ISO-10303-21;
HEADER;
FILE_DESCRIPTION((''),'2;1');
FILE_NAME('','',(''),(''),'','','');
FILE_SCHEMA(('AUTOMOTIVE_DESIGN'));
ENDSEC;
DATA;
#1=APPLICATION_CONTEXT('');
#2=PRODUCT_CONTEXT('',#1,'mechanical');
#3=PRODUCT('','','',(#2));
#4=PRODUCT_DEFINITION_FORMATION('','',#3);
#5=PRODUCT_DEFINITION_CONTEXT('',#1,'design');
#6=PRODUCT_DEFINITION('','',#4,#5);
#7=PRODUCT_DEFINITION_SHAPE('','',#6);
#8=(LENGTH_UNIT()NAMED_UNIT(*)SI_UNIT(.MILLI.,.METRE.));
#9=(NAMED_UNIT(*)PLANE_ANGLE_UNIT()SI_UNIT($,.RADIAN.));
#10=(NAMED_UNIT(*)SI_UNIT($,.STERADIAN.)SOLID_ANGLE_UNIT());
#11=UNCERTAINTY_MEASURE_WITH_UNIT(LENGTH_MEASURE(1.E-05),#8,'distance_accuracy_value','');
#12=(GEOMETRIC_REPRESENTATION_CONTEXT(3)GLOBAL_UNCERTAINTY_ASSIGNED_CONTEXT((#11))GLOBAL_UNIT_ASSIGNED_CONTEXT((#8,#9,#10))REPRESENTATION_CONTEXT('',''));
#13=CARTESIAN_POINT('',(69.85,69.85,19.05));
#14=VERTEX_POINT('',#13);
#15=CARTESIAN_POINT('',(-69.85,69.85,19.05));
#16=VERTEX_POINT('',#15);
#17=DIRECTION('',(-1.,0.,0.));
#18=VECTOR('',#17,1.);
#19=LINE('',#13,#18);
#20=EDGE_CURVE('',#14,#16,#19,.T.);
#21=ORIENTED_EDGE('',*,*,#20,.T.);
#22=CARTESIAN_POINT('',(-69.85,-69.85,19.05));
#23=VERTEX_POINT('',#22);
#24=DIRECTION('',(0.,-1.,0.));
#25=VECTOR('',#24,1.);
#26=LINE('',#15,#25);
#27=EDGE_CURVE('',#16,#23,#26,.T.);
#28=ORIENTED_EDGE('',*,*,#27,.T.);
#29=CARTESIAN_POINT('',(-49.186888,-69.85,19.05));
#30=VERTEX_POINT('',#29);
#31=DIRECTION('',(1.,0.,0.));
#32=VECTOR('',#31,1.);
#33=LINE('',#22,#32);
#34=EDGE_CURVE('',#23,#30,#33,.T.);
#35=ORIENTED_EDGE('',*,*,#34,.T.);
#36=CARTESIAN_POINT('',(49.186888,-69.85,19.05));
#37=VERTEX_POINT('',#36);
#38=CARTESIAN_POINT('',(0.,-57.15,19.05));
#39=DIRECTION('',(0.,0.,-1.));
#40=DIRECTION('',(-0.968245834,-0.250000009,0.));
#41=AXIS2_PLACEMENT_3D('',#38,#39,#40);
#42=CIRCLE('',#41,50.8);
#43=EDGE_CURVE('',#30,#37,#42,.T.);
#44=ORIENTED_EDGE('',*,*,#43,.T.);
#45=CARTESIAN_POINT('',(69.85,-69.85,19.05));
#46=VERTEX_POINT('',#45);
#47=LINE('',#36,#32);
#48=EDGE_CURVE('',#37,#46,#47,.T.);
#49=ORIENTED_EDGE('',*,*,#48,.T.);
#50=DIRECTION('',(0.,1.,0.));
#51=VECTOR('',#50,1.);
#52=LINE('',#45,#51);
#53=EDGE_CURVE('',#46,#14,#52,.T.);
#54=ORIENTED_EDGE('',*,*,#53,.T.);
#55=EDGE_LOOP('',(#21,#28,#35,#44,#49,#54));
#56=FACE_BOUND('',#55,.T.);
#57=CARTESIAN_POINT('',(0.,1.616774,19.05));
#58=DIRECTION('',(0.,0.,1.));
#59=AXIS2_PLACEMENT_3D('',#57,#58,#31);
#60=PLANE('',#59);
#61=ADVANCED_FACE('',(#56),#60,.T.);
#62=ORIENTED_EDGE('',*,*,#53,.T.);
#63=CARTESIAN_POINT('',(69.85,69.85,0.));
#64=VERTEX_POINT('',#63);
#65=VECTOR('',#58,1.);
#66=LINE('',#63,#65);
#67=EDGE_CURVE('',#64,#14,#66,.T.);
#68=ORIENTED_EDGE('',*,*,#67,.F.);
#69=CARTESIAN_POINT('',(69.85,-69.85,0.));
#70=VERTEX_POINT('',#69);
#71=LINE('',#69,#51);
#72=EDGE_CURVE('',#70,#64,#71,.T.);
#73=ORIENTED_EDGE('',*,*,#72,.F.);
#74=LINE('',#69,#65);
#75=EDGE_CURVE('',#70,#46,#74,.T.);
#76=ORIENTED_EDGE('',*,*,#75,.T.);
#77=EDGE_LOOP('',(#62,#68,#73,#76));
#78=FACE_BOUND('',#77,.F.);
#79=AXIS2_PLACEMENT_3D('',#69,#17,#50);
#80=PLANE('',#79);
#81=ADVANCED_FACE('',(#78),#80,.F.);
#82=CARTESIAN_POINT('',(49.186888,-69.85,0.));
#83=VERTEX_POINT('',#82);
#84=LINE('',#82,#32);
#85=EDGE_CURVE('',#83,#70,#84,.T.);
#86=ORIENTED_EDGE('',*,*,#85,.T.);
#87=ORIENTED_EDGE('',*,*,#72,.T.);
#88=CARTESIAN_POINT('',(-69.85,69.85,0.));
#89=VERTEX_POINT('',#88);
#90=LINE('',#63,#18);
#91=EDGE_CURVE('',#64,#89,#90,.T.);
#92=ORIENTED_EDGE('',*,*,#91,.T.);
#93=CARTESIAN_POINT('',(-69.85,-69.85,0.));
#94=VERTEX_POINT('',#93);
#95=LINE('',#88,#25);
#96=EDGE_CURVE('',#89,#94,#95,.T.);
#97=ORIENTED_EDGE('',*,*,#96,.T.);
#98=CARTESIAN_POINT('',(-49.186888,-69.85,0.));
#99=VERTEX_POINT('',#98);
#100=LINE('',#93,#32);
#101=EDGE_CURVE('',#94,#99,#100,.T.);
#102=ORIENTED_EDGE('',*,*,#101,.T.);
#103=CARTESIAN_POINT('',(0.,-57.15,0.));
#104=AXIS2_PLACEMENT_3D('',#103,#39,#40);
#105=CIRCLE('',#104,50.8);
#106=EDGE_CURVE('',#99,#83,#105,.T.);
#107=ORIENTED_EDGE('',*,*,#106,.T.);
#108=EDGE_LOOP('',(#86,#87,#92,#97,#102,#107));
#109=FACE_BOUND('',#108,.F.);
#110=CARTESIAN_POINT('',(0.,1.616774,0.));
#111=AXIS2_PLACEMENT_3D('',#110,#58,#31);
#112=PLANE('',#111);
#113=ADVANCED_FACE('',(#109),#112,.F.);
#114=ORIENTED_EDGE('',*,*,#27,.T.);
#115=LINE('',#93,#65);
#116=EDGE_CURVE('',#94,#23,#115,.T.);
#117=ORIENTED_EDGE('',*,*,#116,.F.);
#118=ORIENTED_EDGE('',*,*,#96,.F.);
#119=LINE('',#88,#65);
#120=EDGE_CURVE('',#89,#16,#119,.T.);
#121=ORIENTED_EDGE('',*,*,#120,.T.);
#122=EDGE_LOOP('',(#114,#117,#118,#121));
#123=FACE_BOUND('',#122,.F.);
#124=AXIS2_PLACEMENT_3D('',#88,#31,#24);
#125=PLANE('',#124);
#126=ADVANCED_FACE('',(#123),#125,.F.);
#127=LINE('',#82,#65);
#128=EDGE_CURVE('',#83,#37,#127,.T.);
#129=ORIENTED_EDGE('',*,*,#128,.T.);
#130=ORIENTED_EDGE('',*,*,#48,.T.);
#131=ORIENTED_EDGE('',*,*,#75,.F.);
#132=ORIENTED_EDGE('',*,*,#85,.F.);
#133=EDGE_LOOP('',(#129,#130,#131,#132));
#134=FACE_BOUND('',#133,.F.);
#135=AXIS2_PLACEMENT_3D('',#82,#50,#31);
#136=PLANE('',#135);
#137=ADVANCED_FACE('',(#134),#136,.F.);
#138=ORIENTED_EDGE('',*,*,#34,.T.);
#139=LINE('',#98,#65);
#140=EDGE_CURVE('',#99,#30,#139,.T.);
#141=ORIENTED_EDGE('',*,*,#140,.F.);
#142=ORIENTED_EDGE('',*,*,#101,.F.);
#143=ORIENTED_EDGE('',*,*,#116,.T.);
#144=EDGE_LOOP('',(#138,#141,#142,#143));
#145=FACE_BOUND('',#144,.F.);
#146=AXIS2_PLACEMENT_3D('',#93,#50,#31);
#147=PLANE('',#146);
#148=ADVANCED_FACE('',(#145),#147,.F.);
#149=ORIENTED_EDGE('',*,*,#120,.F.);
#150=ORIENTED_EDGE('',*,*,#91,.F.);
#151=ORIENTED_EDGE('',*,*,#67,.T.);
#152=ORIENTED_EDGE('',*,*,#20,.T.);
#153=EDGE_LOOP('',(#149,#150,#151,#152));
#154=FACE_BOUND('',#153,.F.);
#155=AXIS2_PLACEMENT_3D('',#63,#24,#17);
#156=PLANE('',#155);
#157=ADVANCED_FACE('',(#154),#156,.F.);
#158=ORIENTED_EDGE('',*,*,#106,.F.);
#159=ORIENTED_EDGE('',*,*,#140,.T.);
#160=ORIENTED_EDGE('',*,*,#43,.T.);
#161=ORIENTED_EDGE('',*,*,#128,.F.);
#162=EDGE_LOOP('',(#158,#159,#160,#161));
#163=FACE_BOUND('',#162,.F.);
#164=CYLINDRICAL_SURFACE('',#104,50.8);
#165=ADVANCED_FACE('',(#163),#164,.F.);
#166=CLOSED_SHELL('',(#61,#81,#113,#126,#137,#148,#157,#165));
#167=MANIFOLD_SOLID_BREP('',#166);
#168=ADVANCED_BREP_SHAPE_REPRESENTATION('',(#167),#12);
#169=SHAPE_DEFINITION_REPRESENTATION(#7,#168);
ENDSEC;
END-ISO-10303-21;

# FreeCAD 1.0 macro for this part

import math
import FreeCAD as App
import Part
import Sketcher

V = App.Vector
Q = App.Units.Quantity

doc = App.newDocument("Part")
body = doc.addObject("PartDesign::Body", "Body")

# Sketch on XY plane
sketch1 = body.newObject("Sketcher::SketchObject", "Sketch")
sketch1.AttachmentSupport = (doc.getObject("XY_Plane"), [""])
sketch1.MapMode = "FlatFace"
sketch1.addGeometry([
    Part.LineSegment(V(49.186888, -69.85, 0), V(69.85, -69.85, 0)),  # 0
    Part.LineSegment(V(69.85, -69.85, 0), V(69.85, 69.85, 0)),  # 1
    Part.LineSegment(V(69.85, 69.85, 0), V(-69.85, 69.85, 0)),  # 2
    Part.LineSegment(V(-69.85, 69.85, 0), V(-69.85, -69.85, 0)),  # 3
    Part.LineSegment(V(-69.85, -69.85, 0), V(-49.186888, -69.85, 0)),  # 4
    Part.ArcOfCircle(Part.Circle(V(0, -57.15, 0), V(0, 0, 1), 50.8), math.radians(-14.477513), math.radians(194.477513)),  # 5
], False)
sketch1.addConstraint([
    Sketcher.Constraint("Coincident", 0, 2, 1, 1),
    Sketcher.Constraint("Coincident", 1, 2, 2, 1),
    Sketcher.Constraint("Coincident", 2, 2, 3, 1),
    Sketcher.Constraint("Coincident", 3, 2, 4, 1),
    Sketcher.Constraint("Coincident", 4, 2, 5, 2),
    Sketcher.Constraint("Coincident", 5, 1, 0, 1),
    Sketcher.Constraint("Horizontal", 0),
    Sketcher.Constraint("Vertical", 1),
    Sketcher.Constraint("Horizontal", 2),
    Sketcher.Constraint("Vertical", 3),
    Sketcher.Constraint("Horizontal", 4),
    Sketcher.Constraint("Symmetric", 0, 2, 2, 2, -1, 1),
    Sketcher.Constraint("Symmetric", 4, 2, 5, 1, -2),
    Sketcher.Constraint("Equal", 2, 1),
    Sketcher.Constraint("Radius", 5, Q("2 in")),
    Sketcher.Constraint("DistanceX", 2, 2, 2, 1, Q("5.5 in")),
    Sketcher.Constraint("DistanceY", 5, 3, 1, 2, Q("5 in")),
])
pad1 = body.newObject("PartDesign::Pad", "Pad")
pad1.Profile = sketch1
pad1.Length = Q("0.75 in")

doc.recompute()
